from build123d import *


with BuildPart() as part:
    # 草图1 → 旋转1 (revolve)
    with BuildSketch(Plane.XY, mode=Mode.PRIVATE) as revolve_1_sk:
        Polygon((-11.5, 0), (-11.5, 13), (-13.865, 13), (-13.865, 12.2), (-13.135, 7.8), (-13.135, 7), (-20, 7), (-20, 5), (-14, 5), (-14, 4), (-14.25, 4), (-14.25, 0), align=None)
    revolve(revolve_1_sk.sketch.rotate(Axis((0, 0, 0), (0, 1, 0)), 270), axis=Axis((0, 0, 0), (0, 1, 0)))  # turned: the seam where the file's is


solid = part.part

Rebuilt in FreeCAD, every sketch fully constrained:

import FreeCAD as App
import Part
import Sketcher

V = App.Vector


def add_polygon(sketch, points):
    """Adds a closed chain of lines whose ends are joined by coincident constraints."""
    first, n = sketch.GeometryCount, len(points)
    for a, b in zip(points, points[1:] + points[:1]):
        sketch.addGeometry(Part.LineSegment(App.Vector(*a, 0), App.Vector(*b, 0)), False)
    for i in range(n):
        sketch.addConstraint(Sketcher.Constraint("Coincident", first + i, 2, first + (i + 1) % n, 1))

doc = App.newDocument("Part")
body = doc.addObject("PartDesign::Body", "Body")

# Sketch on XY plane
sketch1 = doc.addObject("Sketcher::SketchObject", "Sketch")
body.addObject(sketch1)
sketch1.AttachmentSupport = (doc.XY_Plane, [""])
sketch1.MapMode = "FlatFace"
add_polygon(sketch1, [(-11.5, 0), (-11.5, 13), (-13.87, 13), (-13.87, 12.2), (-13.13, 7.8), (-13.13, 7), (-20, 7), (-20, 5), (-14, 5), (-14, 4), (-14.25, 4), (-14.25, 0)])  # lines 0-11
sketch1.addConstraint([
    Sketcher.Constraint("Vertical", 0),
    Sketcher.Constraint("Horizontal", 1),
    Sketcher.Constraint("Vertical", 2),
    Sketcher.Constraint("Vertical", 4),
    Sketcher.Constraint("Horizontal", 5),
    Sketcher.Constraint("Vertical", 6),
    Sketcher.Constraint("Horizontal", 7),
    Sketcher.Constraint("Vertical", 8),
    Sketcher.Constraint("Horizontal", 9),
    Sketcher.Constraint("Vertical", 10),
    Sketcher.Constraint("Horizontal", 11),
    Sketcher.Constraint("PointOnObject", 10, 2, -1),
    Sketcher.Constraint("Equal", 2, 4),
    Sketcher.Constraint("DistanceX", 7, 1, 7, 2, 6.0),
    Sketcher.Constraint("DistanceY", 0, 1, 0, 2, 13.0),
    Sketcher.Constraint("DistanceY", 6, 2, 6, 1, 2.0),
    Sketcher.Constraint("DistanceY", 8, 2, 8, 1, 1.0),
    Sketcher.Constraint("DistanceY", 10, 2, 10, 1, 4.0),
    Sketcher.Constraint("DistanceY", 2, 2, 2, 1, 0.8),
    Sketcher.Constraint("DistanceX", 5, 2, -1, 1, 20.0),
    Sketcher.Constraint("DistanceX", 9, 2, 9, 1, 0.25),
    Sketcher.Constraint("DistanceX", 11, 1, 11, 2, 2.75),
    Sketcher.Constraint("DistanceX", 1, 2, 1, 1, 2.365),
    Sketcher.Constraint("DistanceX", 5, 2, 5, 1, 6.865),
])
revolution = doc.addObject("PartDesign::Revolution", "Revolution")
body.addObject(revolution)
revolution.Profile = sketch1
revolution.ReferenceAxis = (sketch1, ["V_Axis"])
revolution.Angle = 360

doc.recompute()
